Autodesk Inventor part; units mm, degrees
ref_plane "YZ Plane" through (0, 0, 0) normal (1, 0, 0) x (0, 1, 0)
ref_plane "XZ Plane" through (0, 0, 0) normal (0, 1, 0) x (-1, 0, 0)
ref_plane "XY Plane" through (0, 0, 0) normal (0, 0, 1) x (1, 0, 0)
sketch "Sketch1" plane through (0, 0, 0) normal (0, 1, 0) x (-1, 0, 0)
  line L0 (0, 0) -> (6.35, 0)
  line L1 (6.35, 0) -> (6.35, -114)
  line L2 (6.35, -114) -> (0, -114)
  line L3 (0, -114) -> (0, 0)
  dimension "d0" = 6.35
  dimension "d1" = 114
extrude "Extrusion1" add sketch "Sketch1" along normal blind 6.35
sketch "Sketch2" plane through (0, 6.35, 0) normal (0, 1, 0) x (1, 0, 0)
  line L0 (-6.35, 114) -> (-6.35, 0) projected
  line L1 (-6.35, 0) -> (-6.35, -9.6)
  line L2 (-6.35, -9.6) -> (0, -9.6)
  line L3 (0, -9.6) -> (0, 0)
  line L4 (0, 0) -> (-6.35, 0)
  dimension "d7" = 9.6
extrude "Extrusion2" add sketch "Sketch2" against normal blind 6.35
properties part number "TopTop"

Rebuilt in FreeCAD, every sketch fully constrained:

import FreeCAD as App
import Part
import Sketcher


def add_polygon(sketch, points):
    """Adds a closed chain of lines whose ends are joined by coincident constraints."""
    first, n = sketch.GeometryCount, len(points)
    for a, b in zip(points, points[1:] + points[:1]):
        sketch.addGeometry(Part.LineSegment(App.Vector(*a, 0), App.Vector(*b, 0)), False)
    for i in range(n):
        sketch.addConstraint(Sketcher.Constraint("Coincident", first + i, 2, first + (i + 1) % n, 1))

doc = App.newDocument("Part")
params = doc.addObject("Spreadsheet::Sheet", "Params")
for row, (alias, value) in enumerate([
    ("sketch1_height", "114 mm"),
    ("sketch1_width", "6.35 mm"),
    ("pad1_length", "6.35 mm"),
    ("sketch2_height", "9.6 mm"),
    ("sketch2_width", "6.35 mm"),
    ("pad2_length", "6.35 mm"),
], start=1):
    params.set(f"A{row}", alias)
    params.set(f"B{row}", "=" + value)
    params.setAlias(f"B{row}", alias)

body = doc.addObject("PartDesign::Body", "Body")

# Sketch on XZ plane
sketch1 = doc.addObject("Sketcher::SketchObject", "Sketch")
body.addObject(sketch1)
sketch1.AttachmentSupport = (doc.XZ_Plane, [""])
sketch1.MapMode = "FlatFace"
add_polygon(sketch1, [(-6.35, 0), (0, 0), (0, -114), (-6.35, -114)])  # lines 0-3
sketch1.addConstraint([
    Sketcher.Constraint("Horizontal", 0),
    Sketcher.Constraint("Vertical", 1),
    Sketcher.Constraint("Horizontal", 2),
    Sketcher.Constraint("Vertical", 3),
    Sketcher.Constraint("Coincident", 0, 2, -1, 1),
    Sketcher.Constraint("DistanceY", 1, 2, 1, 1, 114.0),
    Sketcher.Constraint("DistanceX", 0, 1, 0, 2, 6.35),
])
sketch1.setExpression("Constraints[9]", "Params.sketch1_height")
sketch1.setExpression("Constraints[10]", "Params.sketch1_width")
pad1 = doc.addObject("PartDesign::Pad", "Pad")
body.addObject(pad1)
pad1.Profile = sketch1
pad1.setExpression("Length", "Params.pad1_length")
pad1.Reversed = True

# Sketch on XZ plane
sketch2 = doc.addObject("Sketcher::SketchObject", "Sketch001")
body.addObject(sketch2)
sketch2.AttachmentSupport = (doc.XZ_Plane, [""])
sketch2.MapMode = "FlatFace"
sketch2.AttachmentOffset = App.Placement(App.Vector(0, 0, -6.35), App.Rotation())
add_polygon(sketch2, [(0, 0), (-6.35, 0), (-6.35, 9.6), (0, 9.6)])  # lines 0-3
sketch2.addConstraint([
    Sketcher.Constraint("Horizontal", 0),
    Sketcher.Constraint("Vertical", 1),
    Sketcher.Constraint("Horizontal", 2),
    Sketcher.Constraint("Vertical", 3),
    Sketcher.Constraint("Coincident", 3, 2, -1, 1),
    Sketcher.Constraint("DistanceY", 1, 1, 1, 2, 9.6),
    Sketcher.Constraint("DistanceX", 0, 2, 0, 1, 6.35),
])
sketch2.setExpression("Constraints[9]", "Params.sketch2_height")
sketch2.setExpression("Constraints[10]", "Params.sketch2_width")
pad2 = doc.addObject("PartDesign::Pad", "Pad001")
body.addObject(pad2)
pad2.Profile = sketch2
pad2.setExpression("Length", "Params.pad2_length")

doc.recompute()
